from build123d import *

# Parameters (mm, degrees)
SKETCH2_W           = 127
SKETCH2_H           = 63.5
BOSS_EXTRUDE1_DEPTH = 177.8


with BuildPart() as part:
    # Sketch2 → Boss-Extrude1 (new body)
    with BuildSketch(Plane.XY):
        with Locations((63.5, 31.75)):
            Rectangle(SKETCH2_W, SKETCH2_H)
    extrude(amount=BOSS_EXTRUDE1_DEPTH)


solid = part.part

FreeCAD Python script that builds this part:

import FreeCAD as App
import Part
import Sketcher

V = App.Vector
Q = App.Units.Quantity

doc = App.newDocument("Part")
body = doc.addObject("PartDesign::Body", "Body")

sketch1 = body.newObject("Sketcher::SketchObject", "Sketch")
sketch1.AttachmentSupport = (doc.getObject("XY_Plane"), [""])
sketch1.MapMode = "FlatFace"
sketch1.addGeometry([
    Part.LineSegment(V(0, 63.5, 0), V(0, 0, 0)),
    Part.LineSegment(V(0, 0, 0), V(127, 0, 0)),
    Part.LineSegment(V(127, 0, 0), V(127, 63.5, 0)),
    Part.LineSegment(V(127, 63.5, 0), V(0, 63.5, 0)),
], False)
sketch1.addConstraint([
    Sketcher.Constraint("Coincident", 0, 2, 1, 1),
    Sketcher.Constraint("Coincident", 1, 2, 2, 1),
    Sketcher.Constraint("Coincident", 2, 2, 3, 1),
    Sketcher.Constraint("Coincident", 3, 2, 0, 1),
    Sketcher.Constraint("Vertical", 0),
    Sketcher.Constraint("Horizontal", 1),
    Sketcher.Constraint("Vertical", 2),
    Sketcher.Constraint("Horizontal", 3),
    Sketcher.Constraint("Coincident", 0, 2, -1, 1),
    Sketcher.Constraint("DistanceX", 1, 1, 1, 2, Q("5 in")),
    Sketcher.Constraint("DistanceY", 0, 2, 0, 1, Q("2.5 in")),
])
pad1 = body.newObject("PartDesign::Pad", "Pad")
pad1.Profile = sketch1
pad1.Length = Q("7 in")

doc.recompute()
